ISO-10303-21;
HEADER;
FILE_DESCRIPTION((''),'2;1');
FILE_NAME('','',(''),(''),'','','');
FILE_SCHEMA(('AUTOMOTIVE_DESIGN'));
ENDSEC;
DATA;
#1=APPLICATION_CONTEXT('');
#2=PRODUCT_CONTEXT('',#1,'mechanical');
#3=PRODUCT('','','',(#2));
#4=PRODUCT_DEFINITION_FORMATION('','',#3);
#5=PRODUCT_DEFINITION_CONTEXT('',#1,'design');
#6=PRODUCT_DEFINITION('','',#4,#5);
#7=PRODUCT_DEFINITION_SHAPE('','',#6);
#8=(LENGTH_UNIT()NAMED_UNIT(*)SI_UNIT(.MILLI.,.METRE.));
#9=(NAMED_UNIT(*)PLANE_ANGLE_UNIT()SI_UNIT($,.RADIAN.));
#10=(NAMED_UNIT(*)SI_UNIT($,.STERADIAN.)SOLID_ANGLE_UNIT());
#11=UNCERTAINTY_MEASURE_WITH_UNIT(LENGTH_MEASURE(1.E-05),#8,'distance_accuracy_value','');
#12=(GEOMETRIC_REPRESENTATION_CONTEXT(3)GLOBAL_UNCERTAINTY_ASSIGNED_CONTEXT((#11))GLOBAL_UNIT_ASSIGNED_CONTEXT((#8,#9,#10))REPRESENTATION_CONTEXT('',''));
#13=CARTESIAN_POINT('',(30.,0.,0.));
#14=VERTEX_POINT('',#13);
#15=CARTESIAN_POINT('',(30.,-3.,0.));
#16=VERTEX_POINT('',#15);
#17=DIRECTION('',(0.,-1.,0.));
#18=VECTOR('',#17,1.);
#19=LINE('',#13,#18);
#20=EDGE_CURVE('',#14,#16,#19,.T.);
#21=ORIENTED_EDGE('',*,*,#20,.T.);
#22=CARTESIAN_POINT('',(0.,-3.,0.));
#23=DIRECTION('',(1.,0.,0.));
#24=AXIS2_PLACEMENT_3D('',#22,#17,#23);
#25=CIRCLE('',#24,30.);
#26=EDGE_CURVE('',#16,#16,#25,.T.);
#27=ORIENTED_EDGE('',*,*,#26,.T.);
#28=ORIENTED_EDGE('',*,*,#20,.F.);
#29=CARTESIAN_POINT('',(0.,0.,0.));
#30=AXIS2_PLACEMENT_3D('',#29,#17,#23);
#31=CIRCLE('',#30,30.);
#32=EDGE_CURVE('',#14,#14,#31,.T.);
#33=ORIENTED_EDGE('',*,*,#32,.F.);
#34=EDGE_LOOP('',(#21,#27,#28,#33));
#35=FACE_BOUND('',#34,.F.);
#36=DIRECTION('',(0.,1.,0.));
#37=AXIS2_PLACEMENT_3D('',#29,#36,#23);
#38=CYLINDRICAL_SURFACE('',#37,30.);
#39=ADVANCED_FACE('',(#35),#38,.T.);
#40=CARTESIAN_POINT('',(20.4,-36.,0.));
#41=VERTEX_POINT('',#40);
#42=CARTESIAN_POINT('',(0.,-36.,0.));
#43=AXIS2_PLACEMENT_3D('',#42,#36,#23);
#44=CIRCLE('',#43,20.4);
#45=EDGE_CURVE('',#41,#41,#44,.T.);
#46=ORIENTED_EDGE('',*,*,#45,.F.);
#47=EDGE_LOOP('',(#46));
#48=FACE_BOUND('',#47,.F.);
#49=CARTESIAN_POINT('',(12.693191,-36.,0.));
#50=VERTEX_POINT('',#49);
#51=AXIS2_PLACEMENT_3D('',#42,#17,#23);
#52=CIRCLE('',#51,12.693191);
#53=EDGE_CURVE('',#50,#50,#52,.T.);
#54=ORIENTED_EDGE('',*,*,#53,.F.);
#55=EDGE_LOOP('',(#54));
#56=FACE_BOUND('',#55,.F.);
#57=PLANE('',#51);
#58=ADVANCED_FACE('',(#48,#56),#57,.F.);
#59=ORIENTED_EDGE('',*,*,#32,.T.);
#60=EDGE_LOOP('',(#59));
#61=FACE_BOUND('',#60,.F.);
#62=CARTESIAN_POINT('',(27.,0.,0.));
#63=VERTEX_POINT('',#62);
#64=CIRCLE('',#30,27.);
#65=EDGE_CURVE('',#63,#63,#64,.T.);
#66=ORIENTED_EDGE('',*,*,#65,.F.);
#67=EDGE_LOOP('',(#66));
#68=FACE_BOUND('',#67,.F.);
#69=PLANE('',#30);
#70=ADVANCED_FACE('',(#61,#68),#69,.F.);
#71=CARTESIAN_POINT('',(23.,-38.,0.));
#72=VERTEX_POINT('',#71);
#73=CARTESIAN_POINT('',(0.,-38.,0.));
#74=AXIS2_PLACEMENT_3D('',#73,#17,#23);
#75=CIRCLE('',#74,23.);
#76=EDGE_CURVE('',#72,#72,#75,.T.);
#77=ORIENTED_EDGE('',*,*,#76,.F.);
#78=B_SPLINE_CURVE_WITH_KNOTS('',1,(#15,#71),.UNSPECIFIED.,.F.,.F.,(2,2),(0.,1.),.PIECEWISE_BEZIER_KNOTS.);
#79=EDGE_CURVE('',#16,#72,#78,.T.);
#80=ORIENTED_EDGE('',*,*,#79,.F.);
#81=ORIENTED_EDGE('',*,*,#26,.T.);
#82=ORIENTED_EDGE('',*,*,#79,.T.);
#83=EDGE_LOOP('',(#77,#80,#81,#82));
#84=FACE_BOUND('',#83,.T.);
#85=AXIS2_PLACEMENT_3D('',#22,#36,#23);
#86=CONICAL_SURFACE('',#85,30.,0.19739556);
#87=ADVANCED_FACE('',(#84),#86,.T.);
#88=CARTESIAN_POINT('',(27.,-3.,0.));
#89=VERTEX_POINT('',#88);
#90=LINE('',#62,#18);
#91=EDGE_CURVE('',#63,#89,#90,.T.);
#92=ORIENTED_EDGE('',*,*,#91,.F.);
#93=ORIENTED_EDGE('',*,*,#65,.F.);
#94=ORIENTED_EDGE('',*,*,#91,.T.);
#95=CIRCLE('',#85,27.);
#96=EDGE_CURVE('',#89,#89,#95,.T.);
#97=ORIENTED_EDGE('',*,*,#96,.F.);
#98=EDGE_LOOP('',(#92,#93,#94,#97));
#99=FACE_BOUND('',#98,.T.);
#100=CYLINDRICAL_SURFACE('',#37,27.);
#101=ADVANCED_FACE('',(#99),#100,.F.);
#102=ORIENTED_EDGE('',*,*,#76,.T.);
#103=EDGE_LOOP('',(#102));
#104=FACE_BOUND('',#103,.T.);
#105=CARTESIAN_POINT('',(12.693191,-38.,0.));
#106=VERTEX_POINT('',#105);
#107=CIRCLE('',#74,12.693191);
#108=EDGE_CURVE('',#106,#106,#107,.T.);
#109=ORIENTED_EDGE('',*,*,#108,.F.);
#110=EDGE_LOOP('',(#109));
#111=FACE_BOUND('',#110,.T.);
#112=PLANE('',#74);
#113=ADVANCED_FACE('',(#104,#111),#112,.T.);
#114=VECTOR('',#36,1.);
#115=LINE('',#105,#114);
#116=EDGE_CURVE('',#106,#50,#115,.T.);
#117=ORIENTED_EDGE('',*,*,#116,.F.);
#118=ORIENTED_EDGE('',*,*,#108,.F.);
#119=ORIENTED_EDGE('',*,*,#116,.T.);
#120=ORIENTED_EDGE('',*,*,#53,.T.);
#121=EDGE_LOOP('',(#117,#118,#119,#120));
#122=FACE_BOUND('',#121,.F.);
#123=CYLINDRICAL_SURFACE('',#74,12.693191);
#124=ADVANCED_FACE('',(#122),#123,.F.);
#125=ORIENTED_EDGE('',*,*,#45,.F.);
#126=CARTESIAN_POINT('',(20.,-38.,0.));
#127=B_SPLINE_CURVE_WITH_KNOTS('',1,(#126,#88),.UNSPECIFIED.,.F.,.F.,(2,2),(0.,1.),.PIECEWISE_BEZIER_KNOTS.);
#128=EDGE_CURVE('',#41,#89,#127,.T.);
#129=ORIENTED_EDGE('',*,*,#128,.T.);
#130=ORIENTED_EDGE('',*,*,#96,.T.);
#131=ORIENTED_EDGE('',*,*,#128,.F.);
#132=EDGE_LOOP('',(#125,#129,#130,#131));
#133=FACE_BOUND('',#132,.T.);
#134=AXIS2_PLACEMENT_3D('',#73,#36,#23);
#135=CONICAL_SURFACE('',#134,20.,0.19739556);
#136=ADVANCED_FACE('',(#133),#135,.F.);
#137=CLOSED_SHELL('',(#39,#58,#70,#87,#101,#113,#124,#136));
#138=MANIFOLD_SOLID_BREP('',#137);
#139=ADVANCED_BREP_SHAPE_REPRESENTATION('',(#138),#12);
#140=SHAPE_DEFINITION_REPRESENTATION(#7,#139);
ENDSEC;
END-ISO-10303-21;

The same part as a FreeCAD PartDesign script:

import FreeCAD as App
import Part
import Sketcher

V = App.Vector

doc = App.newDocument("Part")
body = doc.addObject("PartDesign::Body", "Body")

# Sketch on XZ plane
sketch1 = body.newObject("Sketcher::SketchObject", "Sketch")
sketch1.AttachmentSupport = (doc.getObject("XZ_Plane"), [""])
sketch1.MapMode = "FlatFace"
sketch1.addGeometry([
    Part.Circle(V(0, 0, 0), V(0, 0, 1), 30),
    Part.Circle(V(0, 0, 0), V(0, 0, 1), 27),
], False)
sketch1.addConstraint([
    Sketcher.Constraint("Coincident", 0, 3, -1, 1),
    Sketcher.Constraint("Coincident", 1, 3, -1, 1),
    Sketcher.Constraint("Diameter", 0, 60.0),
    Sketcher.Constraint("Diameter", 1, 54.0),
])
pad1 = body.newObject("PartDesign::Pad", "Pad")
pad1.Profile = sketch1
pad1.Length = 3

# Sketch on XZ plane
sketch2 = body.newObject("Sketcher::SketchObject", "Sketch001")
sketch2.AttachmentSupport = (doc.getObject("XZ_Plane"), [""])
sketch2.MapMode = "FlatFace"
sketch2.AttachmentOffset = App.Placement(V(0, 0, 3), App.Rotation())
sketch2.addGeometry(Part.Circle(V(0, 0, 0), V(0, 0, 1), 30), False)
sketch2.addConstraint([
    Sketcher.Constraint("Coincident", 0, 3, -1, 1),
    Sketcher.Constraint("Diameter", 0, 60.0),
])

# Sketch on XZ plane
sketch3 = body.newObject("Sketcher::SketchObject", "Sketch002")
sketch3.AttachmentSupport = (doc.getObject("XZ_Plane"), [""])
sketch3.MapMode = "FlatFace"
sketch3.AttachmentOffset = App.Placement(V(0, 0, 38), App.Rotation())
sketch3.addGeometry(Part.Circle(V(0, 0, 0), V(0, 0, 1), 23), False)
sketch3.addConstraint([
    Sketcher.Constraint("Coincident", 0, 3, -1, 1),
    Sketcher.Constraint("Diameter", 0, 46.0),
])

additiveloft = body.newObject("PartDesign::AdditiveLoft", "AdditiveLoft")
additiveloft.Profile = sketch2
additiveloft.Sections = [sketch3]

# Sketch on XZ plane
sketch4 = body.newObject("Sketcher::SketchObject", "Sketch003")
sketch4.AttachmentSupport = (doc.getObject("XZ_Plane"), [""])
sketch4.MapMode = "FlatFace"
sketch4.AttachmentOffset = App.Placement(V(0, 0, 38), App.Rotation())
sketch4.addGeometry(Part.Circle(V(0, 0, 0), V(0, 0, 1), 20), False)
sketch4.addConstraint([
    Sketcher.Constraint("Coincident", 0, 3, -1, 1),
    Sketcher.Constraint("Diameter", 0, 40.0),
])

# Sketch on XZ plane
sketch5 = body.newObject("Sketcher::SketchObject", "Sketch004")
sketch5.AttachmentSupport = (doc.getObject("XZ_Plane"), [""])
sketch5.MapMode = "FlatFace"
sketch5.AttachmentOffset = App.Placement(V(0, 0, 3), App.Rotation())
sketch5.addGeometry(Part.Circle(V(0, 0, 0), V(0, 0, 1), 27), False)
sketch5.addConstraint([
    Sketcher.Constraint("Coincident", 0, 3, -1, 1),
    Sketcher.Constraint("Diameter", 0, 54.0),
])

subtractiveloft = body.newObject("PartDesign::SubtractiveLoft", "SubtractiveLoft")
subtractiveloft.Profile = sketch4
subtractiveloft.Sections = [sketch5]

# Sketch on XZ plane
sketch6 = body.newObject("Sketcher::SketchObject", "Sketch005")
sketch6.AttachmentSupport = (doc.getObject("XZ_Plane"), [""])
sketch6.MapMode = "FlatFace"
sketch6.AttachmentOffset = App.Placement(V(0, 0, 38), App.Rotation())
sketch6.addGeometry([
    Part.Circle(V(0, 0, 0), V(0, 0, 1), 22.403667),
    Part.Circle(V(0, 0, 0), V(0, 0, 1), 12.693191),
], False)
sketch6.addConstraint([
    Sketcher.Constraint("Coincident", 0, 3, -1, 1),
    Sketcher.Constraint("Coincident", 1, 3, -1, 1),
    Sketcher.Constraint("Diameter", 0, 44.807334),
    Sketcher.Constraint("Diameter", 1, 25.386382),
])
pad2 = body.newObject("PartDesign::Pad", "Pad001")
pad2.Profile = sketch6
pad2.Length = 2
pad2.Reversed = True

doc.recompute()
